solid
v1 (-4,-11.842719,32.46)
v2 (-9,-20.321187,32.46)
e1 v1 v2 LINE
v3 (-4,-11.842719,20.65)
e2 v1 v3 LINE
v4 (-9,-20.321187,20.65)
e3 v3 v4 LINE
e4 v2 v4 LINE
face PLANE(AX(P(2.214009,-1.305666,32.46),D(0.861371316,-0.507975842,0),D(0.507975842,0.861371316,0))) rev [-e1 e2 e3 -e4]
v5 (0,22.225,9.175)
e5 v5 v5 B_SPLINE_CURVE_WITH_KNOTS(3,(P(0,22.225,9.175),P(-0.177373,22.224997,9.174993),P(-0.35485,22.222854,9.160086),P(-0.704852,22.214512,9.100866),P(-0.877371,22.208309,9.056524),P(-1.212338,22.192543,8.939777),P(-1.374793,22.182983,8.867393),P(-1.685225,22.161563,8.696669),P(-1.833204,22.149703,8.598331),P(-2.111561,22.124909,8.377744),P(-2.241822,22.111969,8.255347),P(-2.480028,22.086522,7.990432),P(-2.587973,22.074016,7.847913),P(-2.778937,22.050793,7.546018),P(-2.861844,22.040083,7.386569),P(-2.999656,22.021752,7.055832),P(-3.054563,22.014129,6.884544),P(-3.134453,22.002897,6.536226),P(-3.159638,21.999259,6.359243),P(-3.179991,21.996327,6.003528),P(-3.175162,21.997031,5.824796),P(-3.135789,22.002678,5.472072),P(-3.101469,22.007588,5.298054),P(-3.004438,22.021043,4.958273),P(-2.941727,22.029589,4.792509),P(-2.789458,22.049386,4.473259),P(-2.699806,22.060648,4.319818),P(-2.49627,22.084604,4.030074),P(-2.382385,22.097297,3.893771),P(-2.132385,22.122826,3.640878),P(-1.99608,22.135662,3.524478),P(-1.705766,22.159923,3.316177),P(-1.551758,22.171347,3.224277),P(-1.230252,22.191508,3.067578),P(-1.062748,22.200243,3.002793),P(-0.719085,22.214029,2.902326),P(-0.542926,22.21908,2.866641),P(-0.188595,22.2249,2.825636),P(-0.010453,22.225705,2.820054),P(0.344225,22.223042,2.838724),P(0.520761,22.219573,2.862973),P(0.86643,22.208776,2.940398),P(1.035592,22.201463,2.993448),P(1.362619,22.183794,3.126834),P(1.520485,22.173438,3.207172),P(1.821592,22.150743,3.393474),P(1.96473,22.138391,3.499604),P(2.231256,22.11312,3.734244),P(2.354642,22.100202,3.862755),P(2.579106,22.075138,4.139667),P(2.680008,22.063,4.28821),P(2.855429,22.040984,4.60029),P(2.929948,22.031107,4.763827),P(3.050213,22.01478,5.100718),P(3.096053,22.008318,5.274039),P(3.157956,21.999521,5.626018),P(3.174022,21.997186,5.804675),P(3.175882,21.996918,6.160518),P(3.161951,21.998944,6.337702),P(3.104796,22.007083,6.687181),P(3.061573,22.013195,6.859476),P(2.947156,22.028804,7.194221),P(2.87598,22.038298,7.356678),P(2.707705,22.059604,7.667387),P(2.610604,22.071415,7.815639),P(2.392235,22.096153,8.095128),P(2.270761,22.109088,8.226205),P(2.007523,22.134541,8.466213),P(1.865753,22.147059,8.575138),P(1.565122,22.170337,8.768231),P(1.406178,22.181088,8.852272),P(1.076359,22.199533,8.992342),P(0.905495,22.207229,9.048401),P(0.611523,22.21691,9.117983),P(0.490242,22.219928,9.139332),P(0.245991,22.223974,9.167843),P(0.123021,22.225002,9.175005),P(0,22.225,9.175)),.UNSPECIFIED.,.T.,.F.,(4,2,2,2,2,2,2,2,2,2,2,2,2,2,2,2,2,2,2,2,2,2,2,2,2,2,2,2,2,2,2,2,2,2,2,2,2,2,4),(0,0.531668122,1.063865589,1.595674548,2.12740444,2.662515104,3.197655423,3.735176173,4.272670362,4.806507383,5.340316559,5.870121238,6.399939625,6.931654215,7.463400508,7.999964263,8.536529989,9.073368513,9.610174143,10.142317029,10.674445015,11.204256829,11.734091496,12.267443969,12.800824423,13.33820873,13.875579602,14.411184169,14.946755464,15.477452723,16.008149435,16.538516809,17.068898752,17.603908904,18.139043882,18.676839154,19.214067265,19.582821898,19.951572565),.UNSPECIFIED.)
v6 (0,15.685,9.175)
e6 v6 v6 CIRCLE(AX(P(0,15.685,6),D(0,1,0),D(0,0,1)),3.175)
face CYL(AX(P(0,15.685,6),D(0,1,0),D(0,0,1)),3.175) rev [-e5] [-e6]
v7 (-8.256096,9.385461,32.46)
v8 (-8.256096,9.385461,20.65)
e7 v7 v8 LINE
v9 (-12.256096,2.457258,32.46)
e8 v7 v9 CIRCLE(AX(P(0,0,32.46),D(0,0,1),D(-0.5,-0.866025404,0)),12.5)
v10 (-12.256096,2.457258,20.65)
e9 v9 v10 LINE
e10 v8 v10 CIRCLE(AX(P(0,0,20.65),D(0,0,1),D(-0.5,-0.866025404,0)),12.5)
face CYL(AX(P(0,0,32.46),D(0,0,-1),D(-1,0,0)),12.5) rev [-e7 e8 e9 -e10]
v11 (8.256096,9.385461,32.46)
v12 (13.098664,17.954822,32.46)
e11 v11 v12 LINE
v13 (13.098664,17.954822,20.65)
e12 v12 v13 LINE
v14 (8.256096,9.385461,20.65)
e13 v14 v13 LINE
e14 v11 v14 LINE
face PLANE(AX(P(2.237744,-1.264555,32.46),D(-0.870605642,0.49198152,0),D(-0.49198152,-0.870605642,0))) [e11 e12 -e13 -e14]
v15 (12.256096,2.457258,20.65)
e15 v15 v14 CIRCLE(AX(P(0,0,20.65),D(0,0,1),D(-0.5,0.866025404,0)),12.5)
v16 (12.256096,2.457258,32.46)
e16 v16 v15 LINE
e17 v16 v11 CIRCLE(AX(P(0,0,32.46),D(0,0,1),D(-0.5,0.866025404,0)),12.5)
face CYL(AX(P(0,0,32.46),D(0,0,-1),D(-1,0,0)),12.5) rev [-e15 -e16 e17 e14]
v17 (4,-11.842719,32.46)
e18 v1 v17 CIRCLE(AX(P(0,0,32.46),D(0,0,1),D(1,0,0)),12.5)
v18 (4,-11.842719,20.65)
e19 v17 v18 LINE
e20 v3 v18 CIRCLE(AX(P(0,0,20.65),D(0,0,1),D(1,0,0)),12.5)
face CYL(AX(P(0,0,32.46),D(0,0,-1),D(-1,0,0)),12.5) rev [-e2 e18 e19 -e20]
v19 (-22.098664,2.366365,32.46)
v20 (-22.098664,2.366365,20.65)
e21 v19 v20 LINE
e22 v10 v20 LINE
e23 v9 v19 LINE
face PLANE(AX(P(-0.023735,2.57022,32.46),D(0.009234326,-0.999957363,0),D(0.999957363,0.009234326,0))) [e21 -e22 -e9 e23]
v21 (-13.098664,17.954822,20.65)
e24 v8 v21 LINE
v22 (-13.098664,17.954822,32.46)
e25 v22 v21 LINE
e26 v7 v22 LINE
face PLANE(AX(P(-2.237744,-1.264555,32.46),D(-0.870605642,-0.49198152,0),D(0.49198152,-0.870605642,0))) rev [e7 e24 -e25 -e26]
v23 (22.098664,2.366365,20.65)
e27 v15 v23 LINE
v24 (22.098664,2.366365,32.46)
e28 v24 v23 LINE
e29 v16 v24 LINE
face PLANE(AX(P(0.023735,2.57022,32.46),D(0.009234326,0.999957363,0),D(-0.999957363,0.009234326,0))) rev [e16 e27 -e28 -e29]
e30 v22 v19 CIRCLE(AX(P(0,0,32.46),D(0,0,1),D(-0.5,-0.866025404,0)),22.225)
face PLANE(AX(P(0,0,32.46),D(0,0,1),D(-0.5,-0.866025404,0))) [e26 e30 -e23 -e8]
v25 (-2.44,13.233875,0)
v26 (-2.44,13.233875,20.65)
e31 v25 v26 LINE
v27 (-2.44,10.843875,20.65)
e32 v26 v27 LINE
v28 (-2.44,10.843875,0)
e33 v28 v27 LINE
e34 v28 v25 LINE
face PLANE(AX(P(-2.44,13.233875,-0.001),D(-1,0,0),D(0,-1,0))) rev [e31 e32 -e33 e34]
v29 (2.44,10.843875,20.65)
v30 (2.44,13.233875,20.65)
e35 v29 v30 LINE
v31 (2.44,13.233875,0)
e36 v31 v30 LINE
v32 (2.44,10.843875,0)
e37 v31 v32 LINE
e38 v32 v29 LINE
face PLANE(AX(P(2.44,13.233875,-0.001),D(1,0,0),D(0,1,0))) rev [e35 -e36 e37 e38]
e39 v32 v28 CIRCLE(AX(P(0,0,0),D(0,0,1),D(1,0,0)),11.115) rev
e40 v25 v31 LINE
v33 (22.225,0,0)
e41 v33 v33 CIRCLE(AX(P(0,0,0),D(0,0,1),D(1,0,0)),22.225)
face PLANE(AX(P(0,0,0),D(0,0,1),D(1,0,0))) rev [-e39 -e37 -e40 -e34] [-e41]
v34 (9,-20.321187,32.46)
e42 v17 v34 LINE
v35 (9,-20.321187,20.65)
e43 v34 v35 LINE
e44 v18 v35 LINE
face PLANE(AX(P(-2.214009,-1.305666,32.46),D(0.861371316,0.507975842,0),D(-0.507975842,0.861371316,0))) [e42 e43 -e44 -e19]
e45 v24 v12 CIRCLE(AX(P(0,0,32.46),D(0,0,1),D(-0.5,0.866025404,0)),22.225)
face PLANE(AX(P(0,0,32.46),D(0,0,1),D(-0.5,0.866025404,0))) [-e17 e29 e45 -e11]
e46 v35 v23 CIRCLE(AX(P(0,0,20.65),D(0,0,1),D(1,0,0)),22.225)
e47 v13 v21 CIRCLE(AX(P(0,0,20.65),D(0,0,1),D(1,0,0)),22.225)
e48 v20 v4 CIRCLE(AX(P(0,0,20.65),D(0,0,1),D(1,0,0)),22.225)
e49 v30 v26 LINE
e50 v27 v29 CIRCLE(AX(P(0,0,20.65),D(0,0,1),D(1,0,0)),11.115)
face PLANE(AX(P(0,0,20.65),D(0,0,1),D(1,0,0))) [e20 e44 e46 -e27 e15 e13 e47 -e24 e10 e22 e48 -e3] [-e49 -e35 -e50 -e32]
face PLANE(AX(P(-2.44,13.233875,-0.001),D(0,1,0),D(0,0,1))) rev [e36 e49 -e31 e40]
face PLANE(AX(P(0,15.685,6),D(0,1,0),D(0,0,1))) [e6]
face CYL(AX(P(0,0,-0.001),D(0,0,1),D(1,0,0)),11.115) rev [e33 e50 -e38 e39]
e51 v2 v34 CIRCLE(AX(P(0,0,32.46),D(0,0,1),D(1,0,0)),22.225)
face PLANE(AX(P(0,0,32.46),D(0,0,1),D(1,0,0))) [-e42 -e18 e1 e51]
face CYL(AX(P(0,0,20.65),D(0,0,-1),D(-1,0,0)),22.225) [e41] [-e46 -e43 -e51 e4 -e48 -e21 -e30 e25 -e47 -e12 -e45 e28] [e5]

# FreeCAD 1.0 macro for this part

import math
import FreeCAD as App
import Part
import Sketcher

V = App.Vector
Q = App.Units.Quantity

doc = App.newDocument("Part")
body = doc.addObject("PartDesign::Body", "Body")

sketch1 = body.newObject("Sketcher::SketchObject", "Sketch")
sketch1.AttachmentSupport = (doc.getObject("XY_Plane"), [""])
sketch1.MapMode = "FlatFace"
sketch1.addGeometry(Part.Circle(V(0, 0, 0), V(0, 0, 1), 22), False)
sketch1.addConstraint(Sketcher.Constraint("Coincident", 0, 3, -1, 1))
sketch1.addConstraint(Sketcher.Constraint("Diameter", 0, Q("1.75 in")))
pad1 = body.newObject("PartDesign::Pad", "Pad")
pad1.Profile = sketch1
pad1.Length = 20.65

sketch2 = body.newObject("Sketcher::SketchObject", "Sketch001")
sketch2.AttachmentSupport = (doc.getObject("XY_Plane"), [""])
sketch2.MapMode = "FlatFace"
sketch2.AttachmentOffset = App.Placement(V(0, 0, 20.65), App.Rotation())
sketch2.addGeometry(Part.LineSegment(V(2.4, 13.2, 0), V(-2.4, 13.2, 0)), False)
sketch2.addGeometry(Part.LineSegment(V(-2.4, 13.2, 0), V(-2.4, 10.8, 0)), False)
sketch2.addGeometry(Part.ArcOfCircle(Part.Circle(V(0, 0, 0), V(0, 0, 1), 11.1), math.radians(103), math.radians(437)), False)
sketch2.addGeometry(Part.LineSegment(V(2.4, 10.8, 0), V(2.4, 13.2, 0)), False)
sketch2.addConstraint(Sketcher.Constraint("Coincident", 0, 2, 1, 1))
sketch2.addConstraint(Sketcher.Constraint("Coincident", 1, 2, 2, 1))
sketch2.addConstraint(Sketcher.Constraint("Coincident", 2, 2, 3, 1))
sketch2.addConstraint(Sketcher.Constraint("Coincident", 3, 2, 0, 1))
sketch2.addConstraint(Sketcher.Constraint("Horizontal", 0))
sketch2.addConstraint(Sketcher.Constraint("Vertical", 1))
sketch2.addConstraint(Sketcher.Constraint("Vertical", 3))
sketch2.addConstraint(Sketcher.Constraint("Coincident", 2, 3, -1, 1))
sketch2.addConstraint(Sketcher.Constraint("Horizontal", 1, 2, 2, 2))
sketch2.addConstraint(Sketcher.Constraint("Radius", 2, Q("11.115 mm")))
sketch2.addConstraint(Sketcher.Constraint("DistanceX", 0, 2, 0, 1, Q("4.88 mm")))
sketch2.addConstraint(Sketcher.Constraint("DistanceY", 1, 2, 1, 1, Q("2.39 mm")))
pocket1 = body.newObject("PartDesign::Pocket", "Pocket")
pocket1.Profile = sketch2
pocket1.Type = "UpToFirst"

sketch3 = body.newObject("Sketcher::SketchObject", "Sketch002")
sketch3.AttachmentSupport = (doc.getObject("XY_Plane"), [""])
sketch3.MapMode = "FlatFace"
sketch3.AttachmentOffset = App.Placement(V(0, 0, 20.65), App.Rotation())
sketch3.addGeometry(Part.ArcOfCircle(Part.Circle(V(0, 0, 0), V(0, 0, 1), 12.5), math.radians(-108.66), math.radians(-90)), False)
sketch3.addGeometry(Part.LineSegment(V(-4, -11.8, 0), V(-9, -20.3, 0)), False)
sketch3.addGeometry(Part.ArcOfCircle(Part.Circle(V(0, 0, 0), V(0, 0, 1), 22.2), math.radians(-114), math.radians(-90)), False)
sketch3.addGeometry(Part.ArcOfCircle(Part.Circle(V(0, 0, 0), V(0, 0, 1), 22.2), math.radians(-90), math.radians(-66)), False)
sketch3.addGeometry(Part.LineSegment(V(9, -20.3, 0), V(4, -11.8, 0)), False)
sketch3.addGeometry(Part.ArcOfCircle(Part.Circle(V(0, 0, 0), V(0, 0, 1), 12.5), math.radians(-90), math.radians(-71.34)), False)
sketch3.addConstraint(Sketcher.Constraint("Coincident", 0, 1, 1, 1))
sketch3.addConstraint(Sketcher.Constraint("Coincident", 1, 2, 2, 1))
sketch3.addConstraint(Sketcher.Constraint("Tangent", 2, 2, 3, 1))
sketch3.addConstraint(Sketcher.Constraint("Coincident", 3, 2, 4, 1))
sketch3.addConstraint(Sketcher.Constraint("Coincident", 4, 2, 5, 2))
sketch3.addConstraint(Sketcher.Constraint("Tangent", 5, 1, 0, 2))
sketch3.addConstraint(Sketcher.Constraint("Coincident", 0, 3, -1, 1))
sketch3.addConstraint(Sketcher.Constraint("Coincident", 2, 3, -1, 1))
sketch3.addConstraint(Sketcher.Constraint("Equal", 2, 3))
sketch3.addConstraint(Sketcher.Constraint("Equal", 0, 5))
sketch3.addConstraint(Sketcher.Constraint("PointOnObject", 2, 2, -2))
sketch3.addConstraint(Sketcher.Constraint("PointOnObject", 5, 1, -2))
sketch3.addConstraint(Sketcher.Constraint("Horizontal", 1, 2, 3, 2))
sketch3.addConstraint(Sketcher.Constraint("Horizontal", 0, 1, 4, 2))
sketch3.addConstraint(Sketcher.Constraint("Radius", 2, Q("0.875 in")))
sketch3.addConstraint(Sketcher.Constraint("Radius", 0, Q("12.5 mm")))
sketch3.addConstraint(Sketcher.Constraint("DistanceX", 0, 1, -1, 1, Q("4 mm")))
sketch3.addConstraint(Sketcher.Constraint("DistanceX", 1, 2, -1, 1, Q("9 mm")))
pad2 = body.newObject("PartDesign::Pad", "Pad001")
pad2.Profile = sketch3
pad2.Length = 11.81
doc.recompute()

polarpattern = body.newObject("PartDesign::PolarPattern", "PolarPattern")
polarpattern.Originals = [pad2]
polarpattern.Axis = (doc.getObject("Z_Axis"), [""])
polarpattern.Angle = 360
polarpattern.Occurrences = 3
body.Tip = polarpattern

sketch4 = body.newObject("Sketcher::SketchObject", "Sketch003")
sketch4.AttachmentSupport = (doc.getObject("XZ_Plane"), [""])
sketch4.MapMode = "FlatFace"
sketch4.AttachmentOffset = App.Placement(V(0, 0, -0.875 * 25.4), App.Rotation())
sketch4.addGeometry(Part.Circle(V(0, 6, 0), V(0, 0, 1), 3.2), False)
sketch4.addConstraint(Sketcher.Constraint("PointOnObject", 0, 3, -2))
sketch4.addConstraint(Sketcher.Constraint("Diameter", 0, Q("0.25 in")))
sketch4.addConstraint(Sketcher.Constraint("DistanceY", -1, 1, 0, 3, Q("6 mm")))
pocket2 = body.newObject("PartDesign::Pocket", "Pocket001")
pocket2.Profile = sketch4
pocket2.Length = 6.54
pocket2.Reversed = True

doc.recompute()
